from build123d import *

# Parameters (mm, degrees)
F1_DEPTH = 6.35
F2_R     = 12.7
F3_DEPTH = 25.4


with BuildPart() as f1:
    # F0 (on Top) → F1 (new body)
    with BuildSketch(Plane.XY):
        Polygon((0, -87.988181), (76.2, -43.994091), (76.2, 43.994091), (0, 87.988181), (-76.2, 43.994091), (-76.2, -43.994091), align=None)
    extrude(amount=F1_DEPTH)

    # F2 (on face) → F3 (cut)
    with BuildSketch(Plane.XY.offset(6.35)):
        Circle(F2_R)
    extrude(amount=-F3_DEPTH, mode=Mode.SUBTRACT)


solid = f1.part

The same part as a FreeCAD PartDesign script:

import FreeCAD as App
import Part
import Sketcher
Q = App.Units.Quantity

doc = App.newDocument("Part")
body = doc.addObject("PartDesign::Body", "Body")

# Sketch on XY plane
sketch1 = body.newObject("Sketcher::SketchObject", "Sketch")
sketch1.AttachmentSupport = (doc.getObject("XY_Plane"), [""])
sketch1.MapMode = "FlatFace"
sketch1.addGeometry([
    Part.LineSegment(App.Vector(0, -87.988181, 0), App.Vector(76.2, -43.994091, 0)),  # 0
    Part.LineSegment(App.Vector(76.2, -43.994091, 0), App.Vector(76.2, 43.994091, 0)),  # 1
    Part.LineSegment(App.Vector(76.2, 43.994091, 0), App.Vector(0, 87.988181, 0)),  # 2
    Part.LineSegment(App.Vector(0, 87.988181, 0), App.Vector(-76.2, 43.994091, 0)),  # 3
    Part.LineSegment(App.Vector(-76.2, 43.994091, 0), App.Vector(-76.2, -43.994091, 0)),  # 4
    Part.LineSegment(App.Vector(-76.2, -43.994091, 0), App.Vector(0, -87.988181, 0)),  # 5
], False)
sketch1.addConstraint([
    Sketcher.Constraint("Coincident", 0, 2, 1, 1),
    Sketcher.Constraint("Coincident", 1, 2, 2, 1),
    Sketcher.Constraint("Coincident", 2, 2, 3, 1),
    Sketcher.Constraint("Coincident", 3, 2, 4, 1),
    Sketcher.Constraint("Coincident", 4, 2, 5, 1),
    Sketcher.Constraint("Coincident", 5, 2, 0, 1),
    Sketcher.Constraint("Vertical", 1),
    Sketcher.Constraint("Vertical", 4),
    Sketcher.Constraint("Symmetric", 0, 2, 3, 2, -1, 1),
    Sketcher.Constraint("Symmetric", 2, 2, 5, 2, -1, 1),
    Sketcher.Constraint("PointOnObject", 2, 2, -2),
    Sketcher.Constraint("Parallel", 2, 5),
    Sketcher.Constraint("Horizontal", 1, 2, 3, 2),
    Sketcher.Constraint("DistanceX", -1, 1, 0, 2, Q("3 in")),
    Sketcher.Constraint("Angle", 0, Q("30 deg")),
    Sketcher.Constraint("DistanceY", 1, 1, 1, 2, Q("87.988182 mm")),
])
pad1 = body.newObject("PartDesign::Pad", "Pad")
pad1.Profile = sketch1
pad1.Length = Q("0.25 in")

# Sketch on XY plane
sketch2 = body.newObject("Sketcher::SketchObject", "Sketch001")
sketch2.AttachmentSupport = (doc.getObject("XY_Plane"), [""])
sketch2.MapMode = "FlatFace"
sketch2.AttachmentOffset = App.Placement(App.Vector(0, 0, 0.25 * 25.4), App.Rotation())
sketch2.addGeometry(Part.Circle(App.Vector(0, 0, 0), App.Vector(0, 0, 1), 12.7), False)
sketch2.addConstraint([
    Sketcher.Constraint("Coincident", 0, 3, -1, 1),
    Sketcher.Constraint("Diameter", 0, Q("1 in")),
])
pocket1 = body.newObject("PartDesign::Pocket", "Pocket")
pocket1.Profile = sketch2
pocket1.Length = Q("1 in")

doc.recompute()
